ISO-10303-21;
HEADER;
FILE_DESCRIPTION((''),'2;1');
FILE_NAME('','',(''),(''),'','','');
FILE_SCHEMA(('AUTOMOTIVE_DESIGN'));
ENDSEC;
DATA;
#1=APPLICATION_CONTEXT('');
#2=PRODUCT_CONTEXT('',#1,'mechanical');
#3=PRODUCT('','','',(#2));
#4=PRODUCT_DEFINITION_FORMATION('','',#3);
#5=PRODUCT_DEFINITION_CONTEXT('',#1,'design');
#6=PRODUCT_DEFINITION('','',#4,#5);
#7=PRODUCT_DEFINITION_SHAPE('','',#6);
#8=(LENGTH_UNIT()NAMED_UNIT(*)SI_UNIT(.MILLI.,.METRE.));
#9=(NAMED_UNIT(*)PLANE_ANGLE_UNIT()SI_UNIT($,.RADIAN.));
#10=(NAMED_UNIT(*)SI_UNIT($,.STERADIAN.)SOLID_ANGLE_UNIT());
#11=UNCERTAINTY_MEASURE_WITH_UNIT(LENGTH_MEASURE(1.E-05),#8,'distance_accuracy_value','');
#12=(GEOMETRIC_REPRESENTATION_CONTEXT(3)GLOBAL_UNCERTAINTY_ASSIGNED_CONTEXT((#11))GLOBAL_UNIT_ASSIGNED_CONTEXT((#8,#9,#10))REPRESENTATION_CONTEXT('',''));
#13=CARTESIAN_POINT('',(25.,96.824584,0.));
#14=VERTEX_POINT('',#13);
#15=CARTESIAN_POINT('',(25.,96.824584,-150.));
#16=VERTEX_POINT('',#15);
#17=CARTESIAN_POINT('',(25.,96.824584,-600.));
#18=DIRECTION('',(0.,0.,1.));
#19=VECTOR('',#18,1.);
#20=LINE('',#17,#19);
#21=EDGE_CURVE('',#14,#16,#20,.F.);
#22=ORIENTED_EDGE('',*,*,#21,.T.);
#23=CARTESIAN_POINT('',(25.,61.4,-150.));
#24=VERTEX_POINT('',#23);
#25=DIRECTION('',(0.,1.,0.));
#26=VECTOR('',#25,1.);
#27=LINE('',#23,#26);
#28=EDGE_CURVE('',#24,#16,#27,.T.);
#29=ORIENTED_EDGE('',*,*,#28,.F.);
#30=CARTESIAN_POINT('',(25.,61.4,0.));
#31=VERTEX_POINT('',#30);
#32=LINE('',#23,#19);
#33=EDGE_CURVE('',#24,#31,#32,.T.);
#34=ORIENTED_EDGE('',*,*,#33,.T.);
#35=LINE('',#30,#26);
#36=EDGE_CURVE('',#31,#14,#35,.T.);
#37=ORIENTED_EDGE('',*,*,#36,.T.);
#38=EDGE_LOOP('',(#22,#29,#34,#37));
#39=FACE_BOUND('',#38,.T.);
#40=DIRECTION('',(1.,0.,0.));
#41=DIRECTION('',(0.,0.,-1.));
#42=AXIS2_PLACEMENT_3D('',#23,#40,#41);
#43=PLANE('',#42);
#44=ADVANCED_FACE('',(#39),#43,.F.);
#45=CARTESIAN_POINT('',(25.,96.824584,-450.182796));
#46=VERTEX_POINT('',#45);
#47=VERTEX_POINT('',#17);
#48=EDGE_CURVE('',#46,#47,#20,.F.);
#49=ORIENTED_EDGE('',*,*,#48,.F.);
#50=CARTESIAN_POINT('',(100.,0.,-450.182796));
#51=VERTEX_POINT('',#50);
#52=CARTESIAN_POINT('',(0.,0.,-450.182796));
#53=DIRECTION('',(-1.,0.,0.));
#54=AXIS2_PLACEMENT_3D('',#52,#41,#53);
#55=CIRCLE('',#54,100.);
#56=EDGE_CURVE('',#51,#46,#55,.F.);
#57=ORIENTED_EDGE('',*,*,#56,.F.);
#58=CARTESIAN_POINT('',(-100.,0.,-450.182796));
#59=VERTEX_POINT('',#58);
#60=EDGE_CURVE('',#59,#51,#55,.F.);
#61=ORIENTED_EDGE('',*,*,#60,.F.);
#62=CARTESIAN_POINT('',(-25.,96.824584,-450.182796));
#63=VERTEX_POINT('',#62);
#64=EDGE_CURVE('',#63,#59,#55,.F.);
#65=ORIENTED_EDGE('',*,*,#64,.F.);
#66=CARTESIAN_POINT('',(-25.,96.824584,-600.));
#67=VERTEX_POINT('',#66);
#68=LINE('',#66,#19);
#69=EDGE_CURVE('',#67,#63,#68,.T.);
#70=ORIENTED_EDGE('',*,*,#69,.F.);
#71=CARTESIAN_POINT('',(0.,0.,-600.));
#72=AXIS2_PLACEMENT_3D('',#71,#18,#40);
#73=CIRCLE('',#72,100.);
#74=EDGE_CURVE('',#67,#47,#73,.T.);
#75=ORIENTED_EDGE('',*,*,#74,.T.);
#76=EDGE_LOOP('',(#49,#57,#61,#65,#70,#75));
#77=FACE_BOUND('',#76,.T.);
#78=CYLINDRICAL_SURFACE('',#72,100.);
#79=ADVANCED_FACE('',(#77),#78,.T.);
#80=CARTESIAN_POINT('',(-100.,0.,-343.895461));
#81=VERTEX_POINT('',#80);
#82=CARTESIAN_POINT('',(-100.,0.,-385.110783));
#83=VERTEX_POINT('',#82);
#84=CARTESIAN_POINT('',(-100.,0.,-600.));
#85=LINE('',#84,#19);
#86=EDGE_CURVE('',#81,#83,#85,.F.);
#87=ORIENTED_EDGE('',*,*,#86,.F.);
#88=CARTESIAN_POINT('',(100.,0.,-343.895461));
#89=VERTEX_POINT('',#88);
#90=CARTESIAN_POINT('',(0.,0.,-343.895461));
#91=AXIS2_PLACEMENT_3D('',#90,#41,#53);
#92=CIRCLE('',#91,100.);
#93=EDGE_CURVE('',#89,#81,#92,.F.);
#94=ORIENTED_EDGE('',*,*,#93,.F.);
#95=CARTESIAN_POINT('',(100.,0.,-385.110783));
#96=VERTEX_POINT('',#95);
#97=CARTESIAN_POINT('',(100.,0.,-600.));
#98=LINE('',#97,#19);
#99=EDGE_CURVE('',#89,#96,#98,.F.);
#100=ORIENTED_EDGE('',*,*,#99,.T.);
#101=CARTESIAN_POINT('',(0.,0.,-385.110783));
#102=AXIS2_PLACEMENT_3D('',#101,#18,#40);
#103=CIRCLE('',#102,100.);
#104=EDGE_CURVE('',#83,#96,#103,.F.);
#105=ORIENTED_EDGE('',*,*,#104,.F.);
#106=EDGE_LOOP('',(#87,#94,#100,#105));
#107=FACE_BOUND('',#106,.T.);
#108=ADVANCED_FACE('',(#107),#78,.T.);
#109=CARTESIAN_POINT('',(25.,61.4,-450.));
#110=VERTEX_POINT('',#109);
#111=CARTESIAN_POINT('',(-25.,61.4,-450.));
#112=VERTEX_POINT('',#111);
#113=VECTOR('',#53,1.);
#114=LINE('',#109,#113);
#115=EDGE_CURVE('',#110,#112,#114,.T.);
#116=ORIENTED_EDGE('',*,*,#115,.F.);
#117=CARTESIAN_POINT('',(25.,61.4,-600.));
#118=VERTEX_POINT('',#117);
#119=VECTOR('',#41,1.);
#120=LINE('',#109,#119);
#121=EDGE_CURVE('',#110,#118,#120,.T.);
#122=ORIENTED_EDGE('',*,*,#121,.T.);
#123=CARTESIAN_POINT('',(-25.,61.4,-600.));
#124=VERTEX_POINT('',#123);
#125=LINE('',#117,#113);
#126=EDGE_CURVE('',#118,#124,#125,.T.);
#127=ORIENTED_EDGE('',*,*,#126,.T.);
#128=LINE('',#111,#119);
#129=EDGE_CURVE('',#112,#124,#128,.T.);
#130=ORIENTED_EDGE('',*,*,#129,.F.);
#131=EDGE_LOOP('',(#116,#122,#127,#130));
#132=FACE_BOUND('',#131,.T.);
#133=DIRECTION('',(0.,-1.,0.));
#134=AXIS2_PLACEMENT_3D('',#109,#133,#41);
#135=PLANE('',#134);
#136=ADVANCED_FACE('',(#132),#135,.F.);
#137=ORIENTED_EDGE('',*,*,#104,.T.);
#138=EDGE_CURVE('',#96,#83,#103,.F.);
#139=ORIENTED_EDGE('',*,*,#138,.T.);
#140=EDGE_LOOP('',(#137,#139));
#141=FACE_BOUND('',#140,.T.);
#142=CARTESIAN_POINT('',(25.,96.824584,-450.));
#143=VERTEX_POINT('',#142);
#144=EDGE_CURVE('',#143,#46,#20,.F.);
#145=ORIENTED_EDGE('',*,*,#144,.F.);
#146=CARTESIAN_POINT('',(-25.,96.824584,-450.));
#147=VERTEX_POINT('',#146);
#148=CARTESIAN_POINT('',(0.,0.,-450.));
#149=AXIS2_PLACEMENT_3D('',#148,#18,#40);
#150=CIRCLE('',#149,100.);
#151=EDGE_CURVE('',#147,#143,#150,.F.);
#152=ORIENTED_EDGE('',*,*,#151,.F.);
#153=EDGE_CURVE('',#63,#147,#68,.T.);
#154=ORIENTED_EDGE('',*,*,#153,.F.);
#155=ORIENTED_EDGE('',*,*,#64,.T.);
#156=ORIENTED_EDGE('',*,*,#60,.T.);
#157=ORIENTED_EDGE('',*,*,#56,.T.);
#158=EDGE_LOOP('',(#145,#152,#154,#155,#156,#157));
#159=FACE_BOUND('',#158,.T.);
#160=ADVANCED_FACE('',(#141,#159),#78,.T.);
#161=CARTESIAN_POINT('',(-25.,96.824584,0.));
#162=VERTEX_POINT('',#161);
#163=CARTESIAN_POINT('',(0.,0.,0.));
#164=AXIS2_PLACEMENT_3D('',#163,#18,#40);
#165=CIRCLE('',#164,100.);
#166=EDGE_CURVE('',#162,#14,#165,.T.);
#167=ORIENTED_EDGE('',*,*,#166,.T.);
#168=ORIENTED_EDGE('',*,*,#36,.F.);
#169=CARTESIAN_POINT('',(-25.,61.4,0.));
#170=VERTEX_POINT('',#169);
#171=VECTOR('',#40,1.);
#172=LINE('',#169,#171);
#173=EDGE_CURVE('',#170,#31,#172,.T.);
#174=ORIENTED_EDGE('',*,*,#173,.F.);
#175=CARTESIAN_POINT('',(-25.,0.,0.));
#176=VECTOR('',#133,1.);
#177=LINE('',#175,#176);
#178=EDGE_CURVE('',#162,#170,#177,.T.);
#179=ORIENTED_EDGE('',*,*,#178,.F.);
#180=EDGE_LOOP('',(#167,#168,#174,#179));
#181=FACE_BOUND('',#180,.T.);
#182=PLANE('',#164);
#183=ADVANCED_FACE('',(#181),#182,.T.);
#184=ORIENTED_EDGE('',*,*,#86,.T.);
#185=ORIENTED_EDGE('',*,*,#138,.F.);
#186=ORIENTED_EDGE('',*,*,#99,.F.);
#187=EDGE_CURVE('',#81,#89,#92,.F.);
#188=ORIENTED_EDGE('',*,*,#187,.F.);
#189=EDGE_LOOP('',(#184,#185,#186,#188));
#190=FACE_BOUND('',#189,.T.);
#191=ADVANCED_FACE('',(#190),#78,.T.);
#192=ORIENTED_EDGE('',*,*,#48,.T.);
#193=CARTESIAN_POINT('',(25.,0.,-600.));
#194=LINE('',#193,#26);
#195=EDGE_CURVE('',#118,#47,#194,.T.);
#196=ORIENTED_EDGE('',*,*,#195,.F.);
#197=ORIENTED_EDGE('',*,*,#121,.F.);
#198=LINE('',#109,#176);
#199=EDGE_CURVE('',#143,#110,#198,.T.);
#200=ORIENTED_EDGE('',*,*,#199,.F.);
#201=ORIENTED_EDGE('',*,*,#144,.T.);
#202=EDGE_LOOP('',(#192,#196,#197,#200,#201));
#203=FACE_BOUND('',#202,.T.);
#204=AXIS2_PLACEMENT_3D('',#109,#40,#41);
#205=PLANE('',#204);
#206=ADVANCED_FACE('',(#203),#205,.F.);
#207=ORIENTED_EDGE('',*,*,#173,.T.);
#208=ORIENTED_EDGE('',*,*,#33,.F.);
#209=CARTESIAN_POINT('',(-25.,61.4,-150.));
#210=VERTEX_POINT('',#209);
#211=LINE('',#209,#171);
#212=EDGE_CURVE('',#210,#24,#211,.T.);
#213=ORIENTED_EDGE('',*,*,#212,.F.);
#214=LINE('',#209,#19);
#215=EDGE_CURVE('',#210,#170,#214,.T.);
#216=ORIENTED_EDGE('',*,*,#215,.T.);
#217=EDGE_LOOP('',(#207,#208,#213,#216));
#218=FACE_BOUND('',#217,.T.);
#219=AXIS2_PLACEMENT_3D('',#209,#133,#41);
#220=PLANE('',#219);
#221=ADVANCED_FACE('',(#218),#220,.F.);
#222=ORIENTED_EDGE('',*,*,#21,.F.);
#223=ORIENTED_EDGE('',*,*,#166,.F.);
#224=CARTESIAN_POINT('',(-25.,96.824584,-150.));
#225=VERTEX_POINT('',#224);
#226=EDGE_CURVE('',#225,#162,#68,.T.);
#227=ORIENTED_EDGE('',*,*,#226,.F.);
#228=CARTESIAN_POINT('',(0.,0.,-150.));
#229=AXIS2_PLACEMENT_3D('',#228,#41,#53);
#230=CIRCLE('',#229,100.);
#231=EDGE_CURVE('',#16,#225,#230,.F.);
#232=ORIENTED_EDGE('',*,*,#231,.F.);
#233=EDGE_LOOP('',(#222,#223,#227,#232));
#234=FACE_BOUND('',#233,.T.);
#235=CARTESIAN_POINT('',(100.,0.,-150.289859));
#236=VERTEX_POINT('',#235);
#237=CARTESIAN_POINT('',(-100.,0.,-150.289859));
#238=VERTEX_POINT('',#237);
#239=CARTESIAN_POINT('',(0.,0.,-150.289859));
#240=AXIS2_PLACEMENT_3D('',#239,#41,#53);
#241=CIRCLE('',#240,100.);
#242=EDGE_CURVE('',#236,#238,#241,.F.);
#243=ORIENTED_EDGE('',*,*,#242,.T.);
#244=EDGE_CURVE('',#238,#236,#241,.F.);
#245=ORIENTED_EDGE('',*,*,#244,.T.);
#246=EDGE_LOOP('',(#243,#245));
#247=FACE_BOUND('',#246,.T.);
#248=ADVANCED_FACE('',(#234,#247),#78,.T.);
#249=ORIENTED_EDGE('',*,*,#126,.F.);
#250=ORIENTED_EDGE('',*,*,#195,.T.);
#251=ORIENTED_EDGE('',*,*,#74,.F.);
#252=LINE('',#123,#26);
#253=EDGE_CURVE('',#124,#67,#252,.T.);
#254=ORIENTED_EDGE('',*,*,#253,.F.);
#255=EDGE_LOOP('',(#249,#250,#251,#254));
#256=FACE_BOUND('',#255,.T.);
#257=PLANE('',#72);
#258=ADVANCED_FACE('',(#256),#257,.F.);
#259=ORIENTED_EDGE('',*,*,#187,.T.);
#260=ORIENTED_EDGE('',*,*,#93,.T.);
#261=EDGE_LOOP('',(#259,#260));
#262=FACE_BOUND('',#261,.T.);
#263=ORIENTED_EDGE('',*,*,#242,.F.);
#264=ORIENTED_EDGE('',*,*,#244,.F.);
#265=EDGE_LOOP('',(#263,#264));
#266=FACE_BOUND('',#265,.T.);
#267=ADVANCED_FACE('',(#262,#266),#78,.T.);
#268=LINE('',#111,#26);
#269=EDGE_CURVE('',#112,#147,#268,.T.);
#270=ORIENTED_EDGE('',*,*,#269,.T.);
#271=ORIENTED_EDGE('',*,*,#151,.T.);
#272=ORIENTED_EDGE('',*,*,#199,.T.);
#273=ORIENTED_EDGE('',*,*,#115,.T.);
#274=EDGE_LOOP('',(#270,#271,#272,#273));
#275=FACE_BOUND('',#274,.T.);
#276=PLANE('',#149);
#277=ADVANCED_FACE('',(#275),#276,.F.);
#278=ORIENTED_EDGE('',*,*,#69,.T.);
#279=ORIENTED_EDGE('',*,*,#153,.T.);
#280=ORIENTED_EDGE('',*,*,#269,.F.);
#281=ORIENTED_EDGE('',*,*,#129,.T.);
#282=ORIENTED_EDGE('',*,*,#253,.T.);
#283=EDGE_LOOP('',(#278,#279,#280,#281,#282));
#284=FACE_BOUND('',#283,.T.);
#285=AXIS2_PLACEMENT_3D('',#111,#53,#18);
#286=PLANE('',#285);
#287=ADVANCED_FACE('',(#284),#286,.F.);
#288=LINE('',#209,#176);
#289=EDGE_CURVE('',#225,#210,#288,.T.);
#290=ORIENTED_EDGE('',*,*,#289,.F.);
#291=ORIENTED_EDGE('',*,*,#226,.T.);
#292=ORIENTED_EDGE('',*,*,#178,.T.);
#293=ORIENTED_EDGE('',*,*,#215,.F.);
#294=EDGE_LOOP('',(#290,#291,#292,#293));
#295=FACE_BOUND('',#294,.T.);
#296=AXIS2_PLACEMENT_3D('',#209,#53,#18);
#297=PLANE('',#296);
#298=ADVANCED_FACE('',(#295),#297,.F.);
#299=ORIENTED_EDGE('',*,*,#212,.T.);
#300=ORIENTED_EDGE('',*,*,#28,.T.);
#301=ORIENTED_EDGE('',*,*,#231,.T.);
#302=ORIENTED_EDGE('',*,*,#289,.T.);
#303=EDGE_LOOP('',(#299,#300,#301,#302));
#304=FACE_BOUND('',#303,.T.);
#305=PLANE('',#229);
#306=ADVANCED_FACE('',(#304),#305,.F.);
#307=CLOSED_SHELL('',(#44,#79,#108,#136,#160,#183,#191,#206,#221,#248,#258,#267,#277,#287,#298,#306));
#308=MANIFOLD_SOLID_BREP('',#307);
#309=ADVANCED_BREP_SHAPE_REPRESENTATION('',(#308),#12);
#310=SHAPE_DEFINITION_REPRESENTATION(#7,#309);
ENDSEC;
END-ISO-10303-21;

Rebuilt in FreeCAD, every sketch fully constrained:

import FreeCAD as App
import Part
import Sketcher

V = App.Vector

doc = App.newDocument("Part")
body = doc.addObject("PartDesign::Body", "Body")

sketch1 = body.newObject("Sketcher::SketchObject", "Sketch")
sketch1.AttachmentSupport = (doc.getObject("XY_Plane"), [""])
sketch1.MapMode = "FlatFace"
sketch1.addGeometry(Part.Circle(V(0, 0, 0), V(0, 0, 1), 100), False)
sketch1.addConstraint([
    Sketcher.Constraint("Coincident", 0, 3, -1, 1),
    Sketcher.Constraint("Diameter", 0, 200.0),
])
pad1 = body.newObject("PartDesign::Pad", "Pad")
pad1.Profile = sketch1
pad1.Length = 600
pad1.Reversed = True

sketch2 = body.newObject("Sketcher::SketchObject", "Sketch001")
sketch2.AttachmentSupport = (doc.getObject("XY_Plane"), [""])
sketch2.MapMode = "FlatFace"
sketch2.addGeometry([
    Part.LineSegment(V(-25, 111.4, 0), V(-25, 61.4, 0)),
    Part.LineSegment(V(-25, 61.4, 0), V(25, 61.4, 0)),
    Part.LineSegment(V(25, 61.4, 0), V(25, 111.4, 0)),
    Part.LineSegment(V(25, 111.4, 0), V(-25, 111.4, 0)),
], False)
sketch2.addConstraint([
    Sketcher.Constraint("Coincident", 0, 2, 1, 1),
    Sketcher.Constraint("Coincident", 1, 2, 2, 1),
    Sketcher.Constraint("Coincident", 2, 2, 3, 1),
    Sketcher.Constraint("Coincident", 3, 2, 0, 1),
    Sketcher.Constraint("Vertical", 0),
    Sketcher.Constraint("Horizontal", 1),
    Sketcher.Constraint("Vertical", 2),
    Sketcher.Constraint("Horizontal", 3),
    Sketcher.Constraint("Equal", 3, 0),
    Sketcher.Constraint("DistanceX", 1, 1, 1, 2, 50.0),
    Sketcher.Constraint("DistanceX", 0, 2, -1, 1, 25.0),
    Sketcher.Constraint("DistanceY", -1, 1, 0, 2, 61.4),
])
pocket1 = body.newObject("PartDesign::Pocket", "Pocket")
pocket1.Profile = sketch2
pocket1.Length = 150

sketch3 = body.newObject("Sketcher::SketchObject", "Sketch002")
sketch3.AttachmentSupport = (doc.getObject("XY_Plane"), [""])
sketch3.MapMode = "FlatFace"
sketch3.AttachmentOffset = App.Placement(V(0, 0, -600), App.Rotation())
sketch3.addGeometry([
    Part.LineSegment(V(25, 111.4, 0), V(25, 61.4, 0)),
    Part.LineSegment(V(25, 61.4, 0), V(-25, 61.4, 0)),
    Part.LineSegment(V(-25, 61.4, 0), V(-25, 111.4, 0)),
    Part.LineSegment(V(-25, 111.4, 0), V(25, 111.4, 0)),
], False)
sketch3.addConstraint([
    Sketcher.Constraint("Coincident", 0, 2, 1, 1),
    Sketcher.Constraint("Coincident", 1, 2, 2, 1),
    Sketcher.Constraint("Coincident", 2, 2, 3, 1),
    Sketcher.Constraint("Coincident", 3, 2, 0, 1),
    Sketcher.Constraint("Vertical", 0),
    Sketcher.Constraint("Horizontal", 1),
    Sketcher.Constraint("Vertical", 2),
    Sketcher.Constraint("Horizontal", 3),
    Sketcher.Constraint("Equal", 3, 0),
    Sketcher.Constraint("DistanceX", 1, 2, 1, 1, 50.0),
    Sketcher.Constraint("DistanceX", -1, 1, 0, 2, 25.0),
    Sketcher.Constraint("DistanceY", -1, 1, 0, 2, 61.4),
])
pocket2 = body.newObject("PartDesign::Pocket", "Pocket001")
pocket2.Profile = sketch3
pocket2.Length = 150
pocket2.Reversed = True

doc.recompute()
